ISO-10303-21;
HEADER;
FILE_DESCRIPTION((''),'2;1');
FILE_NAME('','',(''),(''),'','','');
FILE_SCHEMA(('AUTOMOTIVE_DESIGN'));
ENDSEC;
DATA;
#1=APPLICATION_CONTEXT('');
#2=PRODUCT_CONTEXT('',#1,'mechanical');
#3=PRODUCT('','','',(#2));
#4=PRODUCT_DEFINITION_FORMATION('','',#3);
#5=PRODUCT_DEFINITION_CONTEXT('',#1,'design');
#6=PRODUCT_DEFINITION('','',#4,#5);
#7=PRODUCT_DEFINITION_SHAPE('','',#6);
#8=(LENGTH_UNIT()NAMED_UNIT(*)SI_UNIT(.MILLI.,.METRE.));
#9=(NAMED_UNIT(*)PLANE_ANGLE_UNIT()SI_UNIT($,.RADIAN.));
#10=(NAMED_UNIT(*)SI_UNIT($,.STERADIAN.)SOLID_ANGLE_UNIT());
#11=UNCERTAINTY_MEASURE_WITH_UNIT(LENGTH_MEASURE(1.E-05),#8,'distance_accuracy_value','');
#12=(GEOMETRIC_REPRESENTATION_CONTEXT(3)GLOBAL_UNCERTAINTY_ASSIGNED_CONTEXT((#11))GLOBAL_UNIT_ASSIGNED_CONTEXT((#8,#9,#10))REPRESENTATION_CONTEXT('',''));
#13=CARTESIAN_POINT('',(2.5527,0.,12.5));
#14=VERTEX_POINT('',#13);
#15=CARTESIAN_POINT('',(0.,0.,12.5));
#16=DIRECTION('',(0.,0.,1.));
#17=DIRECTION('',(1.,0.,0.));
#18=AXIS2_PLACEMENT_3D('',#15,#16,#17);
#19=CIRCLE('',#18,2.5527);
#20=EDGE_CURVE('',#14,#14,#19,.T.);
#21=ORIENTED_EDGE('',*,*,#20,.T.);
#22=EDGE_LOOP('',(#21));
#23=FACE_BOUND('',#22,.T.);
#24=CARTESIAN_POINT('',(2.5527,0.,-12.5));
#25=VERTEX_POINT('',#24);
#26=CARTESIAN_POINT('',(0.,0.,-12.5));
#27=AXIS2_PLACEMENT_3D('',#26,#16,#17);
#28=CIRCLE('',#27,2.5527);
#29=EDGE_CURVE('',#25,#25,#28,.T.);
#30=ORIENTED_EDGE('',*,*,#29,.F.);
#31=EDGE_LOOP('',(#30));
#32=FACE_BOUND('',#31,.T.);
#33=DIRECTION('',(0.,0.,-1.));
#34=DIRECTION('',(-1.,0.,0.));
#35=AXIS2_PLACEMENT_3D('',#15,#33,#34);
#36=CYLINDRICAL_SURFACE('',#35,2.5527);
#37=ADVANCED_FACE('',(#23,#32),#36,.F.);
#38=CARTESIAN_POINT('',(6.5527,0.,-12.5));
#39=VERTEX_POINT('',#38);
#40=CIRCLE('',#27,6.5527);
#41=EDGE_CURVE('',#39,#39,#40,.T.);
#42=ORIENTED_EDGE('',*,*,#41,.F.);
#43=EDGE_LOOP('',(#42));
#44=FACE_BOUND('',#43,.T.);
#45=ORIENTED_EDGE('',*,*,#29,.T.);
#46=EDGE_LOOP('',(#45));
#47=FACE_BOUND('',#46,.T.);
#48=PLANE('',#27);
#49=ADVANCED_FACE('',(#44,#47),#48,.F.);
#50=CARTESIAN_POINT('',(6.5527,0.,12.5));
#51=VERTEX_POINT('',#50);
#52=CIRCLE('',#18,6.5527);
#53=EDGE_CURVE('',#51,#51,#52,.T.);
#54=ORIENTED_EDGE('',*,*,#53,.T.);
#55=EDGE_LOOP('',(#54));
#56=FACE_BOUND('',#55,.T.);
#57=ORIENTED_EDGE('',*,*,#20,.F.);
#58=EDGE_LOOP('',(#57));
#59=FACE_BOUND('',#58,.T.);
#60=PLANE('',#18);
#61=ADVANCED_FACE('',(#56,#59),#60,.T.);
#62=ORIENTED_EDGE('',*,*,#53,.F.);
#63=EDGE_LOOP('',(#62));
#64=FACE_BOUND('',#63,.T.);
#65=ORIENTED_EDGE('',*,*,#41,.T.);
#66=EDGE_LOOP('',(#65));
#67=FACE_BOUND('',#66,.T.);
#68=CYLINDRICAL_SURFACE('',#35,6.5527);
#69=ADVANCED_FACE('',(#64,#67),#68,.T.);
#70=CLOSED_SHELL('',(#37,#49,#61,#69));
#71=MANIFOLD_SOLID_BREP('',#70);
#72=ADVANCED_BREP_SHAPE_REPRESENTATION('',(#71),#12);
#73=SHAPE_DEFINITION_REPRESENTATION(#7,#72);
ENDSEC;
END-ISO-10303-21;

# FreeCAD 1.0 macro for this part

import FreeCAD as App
import Part
import Sketcher
from FreeCAD import Vector

doc = App.newDocument("Part")
body = doc.addObject("PartDesign::Body", "Body")

# Sketch on XY plane
sketch1 = body.newObject("Sketcher::SketchObject", "Sketch")
sketch1.AttachmentSupport = (doc.getObject("XY_Plane"), [""])
sketch1.MapMode = "FlatFace"
sketch1.addGeometry([
    Part.Circle(Vector(0, 0, 0), Vector(0, 0, 1), 6.6),
    Part.Circle(Vector(0, 0, 0), Vector(0, 0, 1), 2.6),
], False)
sketch1.addConstraint([
    Sketcher.Constraint("Coincident", 0, 3, -1, 1),
    Sketcher.Constraint("Coincident", 1, 3, -1, 1),
    Sketcher.Constraint("Diameter", 0, 13.1054),
    Sketcher.Constraint("Diameter", 1, 5.1054),
])
pad1 = body.newObject("PartDesign::Pad", "Pad")
pad1.Profile = sketch1
pad1.Length = 25
pad1.Midplane = True

doc.recompute()
